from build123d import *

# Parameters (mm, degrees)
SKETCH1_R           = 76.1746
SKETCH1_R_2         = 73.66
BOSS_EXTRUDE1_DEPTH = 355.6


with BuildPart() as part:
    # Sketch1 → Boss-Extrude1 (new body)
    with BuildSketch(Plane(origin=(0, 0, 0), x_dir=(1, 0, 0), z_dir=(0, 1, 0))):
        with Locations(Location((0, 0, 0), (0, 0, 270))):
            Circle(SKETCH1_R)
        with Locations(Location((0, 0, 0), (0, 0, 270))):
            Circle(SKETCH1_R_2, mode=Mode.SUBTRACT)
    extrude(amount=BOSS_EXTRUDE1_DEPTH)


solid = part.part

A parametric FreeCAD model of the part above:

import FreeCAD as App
import Part
import Sketcher
from FreeCAD import Vector
Q = App.Units.Quantity

doc = App.newDocument("Part")
body = doc.addObject("PartDesign::Body", "Body")

sketch1 = body.newObject("Sketcher::SketchObject", "Sketch")
sketch1.AttachmentSupport = (doc.getObject("XZ_Plane"), [""])
sketch1.MapMode = "FlatFace"
sketch1.addGeometry([
    Part.Circle(Vector(0, 0, 0), Vector(0, 0, 1), 76),
    Part.Circle(Vector(0, 0, 0), Vector(0, 0, 1), 74),
], False)
sketch1.addConstraint([
    Sketcher.Constraint("Coincident", 0, 3, -1, 1),
    Sketcher.Constraint("Coincident", 1, 3, -1, 1),
    Sketcher.Constraint("Diameter", 1, Q("5.8 in")),
    Sketcher.Constraint("Diameter", 0, Q("5.998 in")),
])
pad1 = body.newObject("PartDesign::Pad", "Pad")
pad1.Profile = sketch1
pad1.Length = Q("14 in")
pad1.Reversed = True

doc.recompute()
